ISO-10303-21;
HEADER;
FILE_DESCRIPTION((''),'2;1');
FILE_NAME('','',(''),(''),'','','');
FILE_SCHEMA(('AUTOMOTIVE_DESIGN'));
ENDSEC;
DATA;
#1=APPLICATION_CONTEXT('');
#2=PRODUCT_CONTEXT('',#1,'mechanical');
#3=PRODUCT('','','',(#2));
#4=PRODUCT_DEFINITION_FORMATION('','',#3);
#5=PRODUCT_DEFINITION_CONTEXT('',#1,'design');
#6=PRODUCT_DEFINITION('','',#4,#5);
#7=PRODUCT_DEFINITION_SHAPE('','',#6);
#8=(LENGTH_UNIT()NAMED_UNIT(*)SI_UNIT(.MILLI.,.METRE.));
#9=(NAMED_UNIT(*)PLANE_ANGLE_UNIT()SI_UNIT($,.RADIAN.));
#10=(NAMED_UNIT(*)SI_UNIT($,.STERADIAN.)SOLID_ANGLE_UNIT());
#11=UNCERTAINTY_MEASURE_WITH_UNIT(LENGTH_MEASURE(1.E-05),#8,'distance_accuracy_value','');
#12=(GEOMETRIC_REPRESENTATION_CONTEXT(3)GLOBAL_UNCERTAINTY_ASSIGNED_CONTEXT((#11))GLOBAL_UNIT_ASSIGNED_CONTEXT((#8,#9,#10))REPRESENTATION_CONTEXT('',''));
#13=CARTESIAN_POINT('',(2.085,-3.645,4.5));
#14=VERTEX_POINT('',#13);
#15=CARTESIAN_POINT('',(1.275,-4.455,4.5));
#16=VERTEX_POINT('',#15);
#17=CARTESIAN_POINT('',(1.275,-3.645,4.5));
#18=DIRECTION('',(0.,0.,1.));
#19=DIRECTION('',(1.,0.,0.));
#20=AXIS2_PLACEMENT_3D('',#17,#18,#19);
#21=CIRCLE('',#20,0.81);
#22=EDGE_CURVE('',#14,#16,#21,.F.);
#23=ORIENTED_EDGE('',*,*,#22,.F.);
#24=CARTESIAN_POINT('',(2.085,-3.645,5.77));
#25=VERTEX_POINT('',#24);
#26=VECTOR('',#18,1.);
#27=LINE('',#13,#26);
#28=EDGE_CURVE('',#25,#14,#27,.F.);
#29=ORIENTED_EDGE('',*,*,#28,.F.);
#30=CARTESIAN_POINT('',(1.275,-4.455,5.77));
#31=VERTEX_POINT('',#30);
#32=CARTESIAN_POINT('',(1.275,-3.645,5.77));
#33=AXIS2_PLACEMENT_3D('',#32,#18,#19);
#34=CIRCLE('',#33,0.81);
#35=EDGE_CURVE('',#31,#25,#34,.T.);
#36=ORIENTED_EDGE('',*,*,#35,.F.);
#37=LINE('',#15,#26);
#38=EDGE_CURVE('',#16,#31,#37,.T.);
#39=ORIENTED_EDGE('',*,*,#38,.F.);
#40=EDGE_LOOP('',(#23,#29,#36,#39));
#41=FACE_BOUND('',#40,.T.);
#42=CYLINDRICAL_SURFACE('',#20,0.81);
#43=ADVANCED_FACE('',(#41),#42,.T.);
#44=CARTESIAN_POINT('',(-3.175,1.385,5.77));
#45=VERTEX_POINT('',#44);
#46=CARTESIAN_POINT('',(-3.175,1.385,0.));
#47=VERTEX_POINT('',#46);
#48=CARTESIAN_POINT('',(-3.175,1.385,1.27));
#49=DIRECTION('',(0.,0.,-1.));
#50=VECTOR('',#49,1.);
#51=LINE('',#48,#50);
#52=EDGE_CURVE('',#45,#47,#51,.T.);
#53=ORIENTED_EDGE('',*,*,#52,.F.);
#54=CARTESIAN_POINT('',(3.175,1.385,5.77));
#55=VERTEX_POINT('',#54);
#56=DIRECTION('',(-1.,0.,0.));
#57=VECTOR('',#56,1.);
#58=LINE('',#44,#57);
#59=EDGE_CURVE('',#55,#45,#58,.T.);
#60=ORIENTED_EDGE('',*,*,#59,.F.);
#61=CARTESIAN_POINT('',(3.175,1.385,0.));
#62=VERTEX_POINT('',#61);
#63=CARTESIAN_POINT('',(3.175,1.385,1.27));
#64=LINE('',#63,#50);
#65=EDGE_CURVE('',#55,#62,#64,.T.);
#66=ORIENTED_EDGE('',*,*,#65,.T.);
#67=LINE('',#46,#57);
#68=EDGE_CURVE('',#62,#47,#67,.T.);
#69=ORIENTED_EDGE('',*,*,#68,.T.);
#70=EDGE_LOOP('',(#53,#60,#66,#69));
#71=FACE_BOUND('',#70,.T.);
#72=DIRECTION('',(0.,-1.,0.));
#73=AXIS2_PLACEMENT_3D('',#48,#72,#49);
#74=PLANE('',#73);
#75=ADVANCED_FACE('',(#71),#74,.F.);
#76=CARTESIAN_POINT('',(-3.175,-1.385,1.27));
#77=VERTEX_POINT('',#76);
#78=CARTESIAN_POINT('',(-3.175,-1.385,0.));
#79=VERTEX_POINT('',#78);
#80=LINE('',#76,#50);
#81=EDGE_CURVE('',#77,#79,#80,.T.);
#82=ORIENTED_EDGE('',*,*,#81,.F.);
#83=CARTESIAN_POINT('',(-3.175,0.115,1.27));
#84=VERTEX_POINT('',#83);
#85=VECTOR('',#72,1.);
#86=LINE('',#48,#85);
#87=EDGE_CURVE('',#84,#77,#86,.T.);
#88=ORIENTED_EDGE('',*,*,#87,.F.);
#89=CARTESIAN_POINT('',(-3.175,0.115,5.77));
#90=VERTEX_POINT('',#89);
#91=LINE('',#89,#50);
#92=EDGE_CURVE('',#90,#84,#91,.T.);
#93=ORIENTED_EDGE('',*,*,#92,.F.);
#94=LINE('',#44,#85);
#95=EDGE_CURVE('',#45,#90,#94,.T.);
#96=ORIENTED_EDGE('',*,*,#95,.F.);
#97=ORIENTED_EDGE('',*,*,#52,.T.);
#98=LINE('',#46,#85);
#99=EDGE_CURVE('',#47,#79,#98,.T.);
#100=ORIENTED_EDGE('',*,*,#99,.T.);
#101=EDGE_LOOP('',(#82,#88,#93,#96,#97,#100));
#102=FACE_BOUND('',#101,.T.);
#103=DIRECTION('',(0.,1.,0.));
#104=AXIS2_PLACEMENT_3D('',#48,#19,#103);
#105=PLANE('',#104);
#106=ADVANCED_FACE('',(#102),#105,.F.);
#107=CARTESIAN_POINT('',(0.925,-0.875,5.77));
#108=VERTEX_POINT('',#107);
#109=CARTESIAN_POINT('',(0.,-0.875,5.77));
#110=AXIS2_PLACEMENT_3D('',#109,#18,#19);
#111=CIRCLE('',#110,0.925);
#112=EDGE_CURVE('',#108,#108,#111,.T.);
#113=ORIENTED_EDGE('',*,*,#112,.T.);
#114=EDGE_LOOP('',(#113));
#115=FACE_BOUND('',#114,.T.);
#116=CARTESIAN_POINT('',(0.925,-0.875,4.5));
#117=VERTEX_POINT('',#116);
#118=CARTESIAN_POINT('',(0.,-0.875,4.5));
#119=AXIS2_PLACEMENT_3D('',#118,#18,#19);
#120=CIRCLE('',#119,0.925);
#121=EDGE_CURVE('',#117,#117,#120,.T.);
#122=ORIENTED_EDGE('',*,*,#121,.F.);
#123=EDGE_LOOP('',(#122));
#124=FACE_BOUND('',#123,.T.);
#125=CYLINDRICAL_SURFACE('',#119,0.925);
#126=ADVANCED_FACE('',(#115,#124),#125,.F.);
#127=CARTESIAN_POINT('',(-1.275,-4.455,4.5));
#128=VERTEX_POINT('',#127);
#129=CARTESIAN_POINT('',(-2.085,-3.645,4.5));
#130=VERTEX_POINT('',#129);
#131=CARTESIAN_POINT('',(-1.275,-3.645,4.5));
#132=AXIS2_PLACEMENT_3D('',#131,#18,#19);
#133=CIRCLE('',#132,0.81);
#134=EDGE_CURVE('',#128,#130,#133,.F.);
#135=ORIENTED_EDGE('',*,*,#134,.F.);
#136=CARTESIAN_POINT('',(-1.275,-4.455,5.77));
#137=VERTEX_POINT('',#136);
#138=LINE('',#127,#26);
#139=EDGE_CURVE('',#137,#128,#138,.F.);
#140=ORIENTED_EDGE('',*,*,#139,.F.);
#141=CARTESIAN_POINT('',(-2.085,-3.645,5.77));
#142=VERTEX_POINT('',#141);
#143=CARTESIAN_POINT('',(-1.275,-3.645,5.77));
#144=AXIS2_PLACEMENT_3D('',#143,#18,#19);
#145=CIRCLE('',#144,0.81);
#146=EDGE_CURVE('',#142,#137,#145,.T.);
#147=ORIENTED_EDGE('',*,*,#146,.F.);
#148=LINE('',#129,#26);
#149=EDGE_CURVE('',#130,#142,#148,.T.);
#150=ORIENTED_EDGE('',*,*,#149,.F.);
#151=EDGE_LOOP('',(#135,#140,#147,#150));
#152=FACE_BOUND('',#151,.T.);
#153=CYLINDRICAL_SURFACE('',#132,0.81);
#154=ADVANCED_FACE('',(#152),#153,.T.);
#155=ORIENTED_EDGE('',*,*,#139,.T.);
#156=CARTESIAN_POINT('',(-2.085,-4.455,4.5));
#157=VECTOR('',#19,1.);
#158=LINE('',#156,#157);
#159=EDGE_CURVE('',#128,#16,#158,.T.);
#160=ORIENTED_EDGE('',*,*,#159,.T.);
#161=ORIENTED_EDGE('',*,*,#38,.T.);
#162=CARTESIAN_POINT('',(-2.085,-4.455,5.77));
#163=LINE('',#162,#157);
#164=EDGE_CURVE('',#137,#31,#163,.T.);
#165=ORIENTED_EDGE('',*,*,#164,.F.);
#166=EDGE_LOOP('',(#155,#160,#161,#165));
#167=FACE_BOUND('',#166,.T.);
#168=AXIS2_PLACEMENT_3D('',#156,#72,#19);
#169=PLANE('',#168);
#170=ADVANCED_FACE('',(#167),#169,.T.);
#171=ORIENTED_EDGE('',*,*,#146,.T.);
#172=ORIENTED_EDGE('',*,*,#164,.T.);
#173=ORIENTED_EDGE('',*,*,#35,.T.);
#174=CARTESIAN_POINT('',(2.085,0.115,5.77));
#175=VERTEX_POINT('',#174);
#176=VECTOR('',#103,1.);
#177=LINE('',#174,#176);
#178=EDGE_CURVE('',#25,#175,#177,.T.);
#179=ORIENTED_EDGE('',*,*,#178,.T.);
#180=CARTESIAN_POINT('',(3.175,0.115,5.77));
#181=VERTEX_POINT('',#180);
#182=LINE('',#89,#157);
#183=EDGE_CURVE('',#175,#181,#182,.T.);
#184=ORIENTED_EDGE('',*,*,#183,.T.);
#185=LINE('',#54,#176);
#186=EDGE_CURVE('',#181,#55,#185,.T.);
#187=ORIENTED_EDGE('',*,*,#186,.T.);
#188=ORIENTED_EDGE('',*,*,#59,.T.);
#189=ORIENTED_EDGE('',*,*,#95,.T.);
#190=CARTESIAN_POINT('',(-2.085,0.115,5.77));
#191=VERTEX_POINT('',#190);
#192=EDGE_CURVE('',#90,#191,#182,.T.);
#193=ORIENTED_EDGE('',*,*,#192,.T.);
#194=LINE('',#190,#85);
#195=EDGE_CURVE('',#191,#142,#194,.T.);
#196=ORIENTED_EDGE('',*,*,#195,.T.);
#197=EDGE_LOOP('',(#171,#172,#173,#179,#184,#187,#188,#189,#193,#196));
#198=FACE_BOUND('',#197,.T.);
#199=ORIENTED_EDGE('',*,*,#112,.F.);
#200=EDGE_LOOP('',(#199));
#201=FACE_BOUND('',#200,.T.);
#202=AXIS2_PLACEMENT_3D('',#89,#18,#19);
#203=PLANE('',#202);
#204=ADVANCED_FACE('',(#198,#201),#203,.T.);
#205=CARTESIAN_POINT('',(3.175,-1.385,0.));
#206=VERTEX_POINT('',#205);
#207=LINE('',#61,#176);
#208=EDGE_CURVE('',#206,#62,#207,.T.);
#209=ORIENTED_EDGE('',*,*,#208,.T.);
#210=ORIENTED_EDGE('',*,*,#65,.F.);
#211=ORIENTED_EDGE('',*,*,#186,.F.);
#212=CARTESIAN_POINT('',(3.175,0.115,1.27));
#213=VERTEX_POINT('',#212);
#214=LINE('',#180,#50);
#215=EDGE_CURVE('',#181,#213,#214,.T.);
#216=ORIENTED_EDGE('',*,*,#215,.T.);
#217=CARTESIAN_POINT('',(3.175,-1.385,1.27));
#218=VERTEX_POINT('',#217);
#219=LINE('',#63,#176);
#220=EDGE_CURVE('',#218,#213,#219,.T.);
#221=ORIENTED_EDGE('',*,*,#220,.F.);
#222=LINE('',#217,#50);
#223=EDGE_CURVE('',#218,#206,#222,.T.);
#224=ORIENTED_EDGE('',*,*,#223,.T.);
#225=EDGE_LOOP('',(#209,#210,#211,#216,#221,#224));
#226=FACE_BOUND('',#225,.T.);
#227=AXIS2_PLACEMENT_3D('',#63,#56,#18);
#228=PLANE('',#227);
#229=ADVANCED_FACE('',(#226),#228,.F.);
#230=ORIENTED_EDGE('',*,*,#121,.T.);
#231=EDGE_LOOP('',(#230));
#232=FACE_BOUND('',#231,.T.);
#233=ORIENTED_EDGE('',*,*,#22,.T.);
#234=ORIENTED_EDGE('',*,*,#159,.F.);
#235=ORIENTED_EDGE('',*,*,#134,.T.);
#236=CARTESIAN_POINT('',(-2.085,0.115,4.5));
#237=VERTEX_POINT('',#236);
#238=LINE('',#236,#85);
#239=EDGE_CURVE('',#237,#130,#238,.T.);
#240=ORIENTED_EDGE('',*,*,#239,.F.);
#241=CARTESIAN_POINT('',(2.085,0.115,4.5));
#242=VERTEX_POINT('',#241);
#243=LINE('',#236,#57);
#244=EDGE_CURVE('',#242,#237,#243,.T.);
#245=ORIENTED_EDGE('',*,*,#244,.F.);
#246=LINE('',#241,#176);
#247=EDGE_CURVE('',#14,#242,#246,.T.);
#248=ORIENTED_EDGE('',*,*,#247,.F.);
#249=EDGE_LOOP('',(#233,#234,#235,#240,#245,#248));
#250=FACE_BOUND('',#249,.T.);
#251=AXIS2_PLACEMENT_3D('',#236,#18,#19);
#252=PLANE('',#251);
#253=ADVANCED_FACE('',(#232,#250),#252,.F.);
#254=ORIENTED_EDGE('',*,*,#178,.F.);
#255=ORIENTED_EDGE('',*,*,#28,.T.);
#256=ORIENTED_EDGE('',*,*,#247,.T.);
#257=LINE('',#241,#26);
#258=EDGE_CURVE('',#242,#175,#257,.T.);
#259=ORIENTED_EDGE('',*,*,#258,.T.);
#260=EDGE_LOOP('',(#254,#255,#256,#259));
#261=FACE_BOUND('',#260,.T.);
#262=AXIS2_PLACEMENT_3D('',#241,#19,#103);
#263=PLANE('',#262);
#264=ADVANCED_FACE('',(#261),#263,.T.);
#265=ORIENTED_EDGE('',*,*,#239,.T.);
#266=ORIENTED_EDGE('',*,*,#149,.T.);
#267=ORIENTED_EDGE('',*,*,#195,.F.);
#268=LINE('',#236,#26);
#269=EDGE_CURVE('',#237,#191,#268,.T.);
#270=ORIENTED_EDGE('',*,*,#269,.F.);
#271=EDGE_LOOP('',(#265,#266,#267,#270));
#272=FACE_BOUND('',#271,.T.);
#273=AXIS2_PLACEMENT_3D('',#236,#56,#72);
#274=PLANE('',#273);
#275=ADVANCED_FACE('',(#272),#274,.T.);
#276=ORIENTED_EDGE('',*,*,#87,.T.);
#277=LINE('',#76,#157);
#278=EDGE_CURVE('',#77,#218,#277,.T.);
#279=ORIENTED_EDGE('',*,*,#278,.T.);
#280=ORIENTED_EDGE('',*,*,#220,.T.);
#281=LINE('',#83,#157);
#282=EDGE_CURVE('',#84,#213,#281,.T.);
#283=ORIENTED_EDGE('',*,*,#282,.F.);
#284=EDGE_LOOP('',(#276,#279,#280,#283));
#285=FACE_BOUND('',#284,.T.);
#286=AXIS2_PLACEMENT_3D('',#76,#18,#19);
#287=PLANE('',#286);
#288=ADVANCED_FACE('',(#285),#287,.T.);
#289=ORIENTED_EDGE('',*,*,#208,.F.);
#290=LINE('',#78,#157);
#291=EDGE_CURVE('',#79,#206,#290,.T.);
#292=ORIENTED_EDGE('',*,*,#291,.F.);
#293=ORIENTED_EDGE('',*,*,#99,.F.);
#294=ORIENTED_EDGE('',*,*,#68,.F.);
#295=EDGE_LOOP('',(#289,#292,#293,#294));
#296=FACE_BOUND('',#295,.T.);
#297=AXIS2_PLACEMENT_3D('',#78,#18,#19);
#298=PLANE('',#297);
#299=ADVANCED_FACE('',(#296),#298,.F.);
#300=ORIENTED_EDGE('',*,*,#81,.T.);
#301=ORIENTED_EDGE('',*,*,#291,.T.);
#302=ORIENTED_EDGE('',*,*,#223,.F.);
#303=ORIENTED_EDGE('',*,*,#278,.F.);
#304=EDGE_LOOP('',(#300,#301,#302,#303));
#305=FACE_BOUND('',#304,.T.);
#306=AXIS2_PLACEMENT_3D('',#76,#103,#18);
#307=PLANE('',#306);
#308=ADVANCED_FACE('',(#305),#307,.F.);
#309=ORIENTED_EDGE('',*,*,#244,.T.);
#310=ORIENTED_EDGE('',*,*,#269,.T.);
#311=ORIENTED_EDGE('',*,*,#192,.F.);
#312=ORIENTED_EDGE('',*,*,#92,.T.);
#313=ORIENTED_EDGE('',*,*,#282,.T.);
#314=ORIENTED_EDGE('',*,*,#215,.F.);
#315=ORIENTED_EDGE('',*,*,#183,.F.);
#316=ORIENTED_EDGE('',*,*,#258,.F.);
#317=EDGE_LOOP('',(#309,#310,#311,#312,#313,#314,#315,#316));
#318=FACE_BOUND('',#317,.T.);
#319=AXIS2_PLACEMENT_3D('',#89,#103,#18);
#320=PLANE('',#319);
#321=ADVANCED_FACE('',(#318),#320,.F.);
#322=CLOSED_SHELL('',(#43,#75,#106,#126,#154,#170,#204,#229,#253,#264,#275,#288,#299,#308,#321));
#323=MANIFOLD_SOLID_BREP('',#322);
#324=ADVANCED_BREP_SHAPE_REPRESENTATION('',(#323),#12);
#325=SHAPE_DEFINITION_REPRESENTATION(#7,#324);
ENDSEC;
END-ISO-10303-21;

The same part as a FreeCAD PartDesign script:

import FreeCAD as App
import Part
import Sketcher

V = App.Vector
Q = App.Units.Quantity


def edges_at(feature, points):
    """Names of the edges that pass closest to the given points."""
    edges = feature.Shape.Edges
    near = lambda p: min(range(len(edges)), key=lambda i: edges[i].distToShape(Part.Vertex(*p))[0])
    return sorted({f"Edge{near(p) + 1}" for p in points})

doc = App.newDocument("Part")
body = doc.addObject("PartDesign::Body", "Body")

# Sketch on XY plane
sketch1 = body.newObject("Sketcher::SketchObject", "Sketch")
sketch1.AttachmentSupport = (doc.getObject("XY_Plane"), [""])
sketch1.MapMode = "FlatFace"
sketch1.addGeometry(Part.LineSegment(V(-3.175, 1.385, 0), V(-3.175, -1.385, 0)), False)
sketch1.addGeometry(Part.LineSegment(V(-3.175, -1.385, 0), V(3.175, -1.385, 0)), False)
sketch1.addGeometry(Part.LineSegment(V(3.175, -1.385, 0), V(3.175, 1.385, 0)), False)
sketch1.addGeometry(Part.LineSegment(V(3.175, 1.385, 0), V(-3.175, 1.385, 0)), False)
sketch1.addConstraint(Sketcher.Constraint("Coincident", 0, 2, 1, 1))
sketch1.addConstraint(Sketcher.Constraint("Coincident", 1, 2, 2, 1))
sketch1.addConstraint(Sketcher.Constraint("Coincident", 2, 2, 3, 1))
sketch1.addConstraint(Sketcher.Constraint("Coincident", 3, 2, 0, 1))
sketch1.addConstraint(Sketcher.Constraint("Vertical", 0))
sketch1.addConstraint(Sketcher.Constraint("Horizontal", 1))
sketch1.addConstraint(Sketcher.Constraint("Vertical", 2))
sketch1.addConstraint(Sketcher.Constraint("Horizontal", 3))
sketch1.addConstraint(Sketcher.Constraint("Symmetric", 0, 2, 2, 2, -1, 1))
sketch1.addConstraint(Sketcher.Constraint("DistanceX", 1, 1, 1, 2, Q("0.25 in")))
sketch1.addConstraint(Sketcher.Constraint("DistanceY", 0, 2, 0, 1, Q("2.77 mm")))
pad1 = body.newObject("PartDesign::Pad", "Pad")
pad1.Profile = sketch1
pad1.Length = Q("0.05 in")

# Sketch on XY plane
sketch2 = body.newObject("Sketcher::SketchObject", "Sketch001")
sketch2.AttachmentSupport = (doc.getObject("XY_Plane"), [""])
sketch2.MapMode = "FlatFace"
sketch2.AttachmentOffset = App.Placement(V(0, 0, 0.05 * 25.4), App.Rotation())
sketch2.addGeometry(Part.LineSegment(V(-3.175, 1.385, 0), V(-3.175, 0.115, 0)), False)
sketch2.addGeometry(Part.LineSegment(V(-3.175, 0.115, 0), V(3.175, 0.115, 0)), False)
sketch2.addGeometry(Part.LineSegment(V(3.175, 0.115, 0), V(3.175, 1.385, 0)), False)
sketch2.addGeometry(Part.LineSegment(V(3.175, 1.385, 0), V(-3.175, 1.385, 0)), False)
sketch2.addConstraint(Sketcher.Constraint("Coincident", 0, 2, 1, 1))
sketch2.addConstraint(Sketcher.Constraint("Coincident", 1, 2, 2, 1))
sketch2.addConstraint(Sketcher.Constraint("Coincident", 2, 2, 3, 1))
sketch2.addConstraint(Sketcher.Constraint("Coincident", 3, 2, 0, 1))
sketch2.addConstraint(Sketcher.Constraint("Vertical", 0))
sketch2.addConstraint(Sketcher.Constraint("Horizontal", 1))
sketch2.addConstraint(Sketcher.Constraint("Vertical", 2))
sketch2.addConstraint(Sketcher.Constraint("Horizontal", 3))
sketch2.addConstraint(Sketcher.Constraint("DistanceX", 1, 1, 1, 2, Q("0.25 in")))
sketch2.addConstraint(Sketcher.Constraint("DistanceY", 0, 2, 0, 1, Q("0.05 in")))
sketch2.addConstraint(Sketcher.Constraint("DistanceX", 0, 2, -1, 1, Q("0.125 in")))
sketch2.addConstraint(Sketcher.Constraint("DistanceY", -1, 1, 0, 2, Q("0.115 mm")))
pad2 = body.newObject("PartDesign::Pad", "Pad001")
pad2.Profile = sketch2
pad2.Length = 4.5

# Sketch on XY plane
sketch3 = body.newObject("Sketcher::SketchObject", "Sketch002")
sketch3.AttachmentSupport = (doc.getObject("XY_Plane"), [""])
sketch3.MapMode = "FlatFace"
sketch3.AttachmentOffset = App.Placement(V(0, 0, 5.77), App.Rotation())
sketch3.addGeometry(Part.LineSegment(V(-2.085, 0.115, 0), V(-2.085, -4.455, 0)), False)
sketch3.addGeometry(Part.LineSegment(V(-2.085, -4.455, 0), V(2.085, -4.455, 0)), False)
sketch3.addGeometry(Part.LineSegment(V(2.085, -4.455, 0), V(2.085, 0.115, 0)), False)
sketch3.addGeometry(Part.LineSegment(V(2.085, 0.115, 0), V(-2.085, 0.115, 0)), False)
sketch3.addGeometry(Part.Circle(V(0, -0.875, 0), V(0, 0, 1), 0.925), False)
sketch3.addConstraint(Sketcher.Constraint("Coincident", 0, 2, 1, 1))
sketch3.addConstraint(Sketcher.Constraint("Coincident", 1, 2, 2, 1))
sketch3.addConstraint(Sketcher.Constraint("Coincident", 2, 2, 3, 1))
sketch3.addConstraint(Sketcher.Constraint("Coincident", 3, 2, 0, 1))
sketch3.addConstraint(Sketcher.Constraint("Vertical", 0))
sketch3.addConstraint(Sketcher.Constraint("Horizontal", 1))
sketch3.addConstraint(Sketcher.Constraint("Vertical", 2))
sketch3.addConstraint(Sketcher.Constraint("Horizontal", 3))
sketch3.addConstraint(Sketcher.Constraint("PointOnObject", 4, 3, -2))
sketch3.addConstraint(Sketcher.Constraint("Diameter", 4, Q("1.85 mm")))
sketch3.addConstraint(Sketcher.Constraint("DistanceX", 1, 1, 1, 2, Q("4.17 mm")))
sketch3.addConstraint(Sketcher.Constraint("DistanceY", 0, 2, 0, 1, Q("4.57 mm")))
sketch3.addConstraint(Sketcher.Constraint("DistanceY", 4, 3, -1, 1, Q("0.875 mm")))
sketch3.addConstraint(Sketcher.Constraint("DistanceX", 0, 2, -1, 1, Q("2.085 mm")))
sketch3.addConstraint(Sketcher.Constraint("DistanceY", 0, 2, -1, 1, Q("4.455 mm")))
pad3 = body.newObject("PartDesign::Pad", "Pad002")
pad3.Profile = sketch3
pad3.Length = Q("0.05 in")
pad3.Reversed = True
doc.recompute()

fillet = body.newObject("PartDesign::Fillet", "Fillet")
fillet.Base = (pad3, edges_at(pad3, [(-2.085, -4.455, 5.135), (2.085, -4.455, 5.135)]))
fillet.Radius = 0.81

doc.recompute()
